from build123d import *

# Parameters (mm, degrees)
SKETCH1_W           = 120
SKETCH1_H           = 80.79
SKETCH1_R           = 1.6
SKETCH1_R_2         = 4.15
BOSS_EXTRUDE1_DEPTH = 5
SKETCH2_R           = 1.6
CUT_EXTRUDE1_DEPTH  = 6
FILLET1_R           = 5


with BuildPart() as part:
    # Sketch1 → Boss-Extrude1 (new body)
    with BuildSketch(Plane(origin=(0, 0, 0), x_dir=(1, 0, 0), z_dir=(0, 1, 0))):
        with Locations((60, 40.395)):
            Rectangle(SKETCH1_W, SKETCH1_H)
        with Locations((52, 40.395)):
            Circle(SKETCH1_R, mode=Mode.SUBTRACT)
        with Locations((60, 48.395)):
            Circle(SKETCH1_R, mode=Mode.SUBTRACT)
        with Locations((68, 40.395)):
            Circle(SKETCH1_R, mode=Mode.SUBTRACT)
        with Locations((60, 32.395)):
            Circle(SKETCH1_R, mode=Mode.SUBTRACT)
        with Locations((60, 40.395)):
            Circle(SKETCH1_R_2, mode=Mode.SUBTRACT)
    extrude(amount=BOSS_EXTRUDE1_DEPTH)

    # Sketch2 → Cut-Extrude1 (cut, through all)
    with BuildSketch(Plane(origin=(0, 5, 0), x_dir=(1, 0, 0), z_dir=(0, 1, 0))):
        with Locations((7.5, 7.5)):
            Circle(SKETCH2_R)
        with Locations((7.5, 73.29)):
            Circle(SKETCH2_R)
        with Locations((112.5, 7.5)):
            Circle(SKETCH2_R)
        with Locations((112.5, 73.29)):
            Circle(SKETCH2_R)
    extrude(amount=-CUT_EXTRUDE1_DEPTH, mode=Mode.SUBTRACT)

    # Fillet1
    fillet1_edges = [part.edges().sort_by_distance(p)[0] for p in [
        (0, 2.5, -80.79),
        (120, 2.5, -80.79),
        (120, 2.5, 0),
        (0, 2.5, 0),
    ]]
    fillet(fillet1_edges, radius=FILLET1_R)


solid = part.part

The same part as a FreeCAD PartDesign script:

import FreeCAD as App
import Part
import Sketcher

V = App.Vector
Q = App.Units.Quantity


def edges_at(feature, points):
    """Names of the edges that pass closest to the given points."""
    edges = feature.Shape.Edges
    near = lambda p: min(range(len(edges)), key=lambda i: edges[i].distToShape(Part.Vertex(*p))[0])
    return sorted({f"Edge{near(p) + 1}" for p in points})


def add_polygon(sketch, points):
    """Adds a closed chain of lines whose ends are joined by coincident constraints."""
    first, n = sketch.GeometryCount, len(points)
    for a, b in zip(points, points[1:] + points[:1]):
        sketch.addGeometry(Part.LineSegment(App.Vector(*a, 0), App.Vector(*b, 0)), False)
    for i in range(n):
        sketch.addConstraint(Sketcher.Constraint("Coincident", first + i, 2, first + (i + 1) % n, 1))

doc = App.newDocument("Part")
body = doc.addObject("PartDesign::Body", "Body")

# Sketch on XZ plane
sketch1 = body.newObject("Sketcher::SketchObject", "Sketch")
sketch1.AttachmentSupport = (doc.getObject("XZ_Plane"), [""])
sketch1.MapMode = "FlatFace"
add_polygon(sketch1, [(0, -80.8), (0, 0), (120, 0), (120, -80.8)])  # lines 0-3
sketch1.addGeometry(Part.Circle(V(60, -32.4, 0), V(0, 0, 1), 1.6), False)  # 4
sketch1.addGeometry(Part.Circle(V(52, -40.4, 0), V(0, 0, 1), 1.6), False)  # 5
sketch1.addGeometry(Part.Circle(V(60, -40.4, 0), V(0, 0, 1), 4.2), False)  # 6
sketch1.addGeometry(Part.Circle(V(68, -40.4, 0), V(0, 0, 1), 1.6), False)  # 7
sketch1.addGeometry(Part.Circle(V(60, -48.4, 0), V(0, 0, 1), 1.6), False)  # 8
sketch1.addConstraint([
    Sketcher.Constraint("Vertical", 0),
    Sketcher.Constraint("Horizontal", 1),
    Sketcher.Constraint("Vertical", 2),
    Sketcher.Constraint("Horizontal", 3),
    Sketcher.Constraint("Coincident", 0, 2, -1, 1),
    Sketcher.Constraint("Equal", 4, 5),
    Sketcher.Constraint("Equal", 5, 7),
    Sketcher.Constraint("Equal", 7, 8),
    Sketcher.Constraint("Horizontal", 5, 3, 6, 3),
    Sketcher.Constraint("Horizontal", 6, 3, 7, 3),
    Sketcher.Constraint("Vertical", 4, 3, 6, 3),
    Sketcher.Constraint("Vertical", 6, 3, 8, 3),
    Sketcher.Constraint("Diameter", 4, Q("3.2 mm")),
    Sketcher.Constraint("Diameter", 6, Q("8.3 mm")),
    Sketcher.Constraint("DistanceX", 1, 1, 1, 2, Q("120 mm")),
    Sketcher.Constraint("DistanceX", -1, 1, 4, 3, Q("60 mm")),
    Sketcher.Constraint("DistanceX", -1, 1, 5, 3, Q("52 mm")),
    Sketcher.Constraint("DistanceX", -1, 1, 7, 3, Q("68 mm")),
    Sketcher.Constraint("DistanceY", 5, 3, 4, 3, Q("8 mm")),
    Sketcher.Constraint("DistanceY", 8, 3, 6, 3, Q("8 mm")),
    Sketcher.Constraint("DistanceY", 0, 1, 0, 2, Q("80.79 mm")),
    Sketcher.Constraint("DistanceY", 4, 3, -1, 1, Q("32.395 mm")),
])
pad1 = body.newObject("PartDesign::Pad", "Pad")
pad1.Profile = sketch1
pad1.Length = 5
pad1.Reversed = True

# Sketch on XZ plane
sketch2 = body.newObject("Sketcher::SketchObject", "Sketch001")
sketch2.AttachmentSupport = (doc.getObject("XZ_Plane"), [""])
sketch2.MapMode = "FlatFace"
sketch2.AttachmentOffset = App.Placement(V(0, 0, -5), App.Rotation())
sketch2.addGeometry([
    Part.Circle(V(7.5, -7.5, 0), V(0, 0, 1), 1.6),
    Part.Circle(V(7.5, -73.3, 0), V(0, 0, 1), 1.6),
    Part.Circle(V(112.5, -7.5, 0), V(0, 0, 1), 1.6),
    Part.Circle(V(112.5, -73.3, 0), V(0, 0, 1), 1.6),
], False)
sketch2.addConstraint([
    Sketcher.Constraint("Equal", 0, 1),
    Sketcher.Constraint("Equal", 1, 2),
    Sketcher.Constraint("Equal", 2, 3),
    Sketcher.Constraint("Horizontal", 0, 3, 2, 3),
    Sketcher.Constraint("Horizontal", 1, 3, 3, 3),
    Sketcher.Constraint("Vertical", 0, 3, 1, 3),
    Sketcher.Constraint("Vertical", 2, 3, 3, 3),
    Sketcher.Constraint("Diameter", 0, Q("3.2 mm")),
    Sketcher.Constraint("DistanceX", 0, 3, 2, 3, Q("105 mm")),
    Sketcher.Constraint("DistanceX", -1, 1, 0, 3, Q("7.5 mm")),
    Sketcher.Constraint("DistanceY", 0, 3, -1, 1, Q("7.5 mm")),
    Sketcher.Constraint("DistanceY", 1, 3, -1, 1, Q("73.29 mm")),
])
pocket1 = body.newObject("PartDesign::Pocket", "Pocket")
pocket1.Profile = sketch2
pocket1.Type = "ThroughAll"
pocket1.Reversed = True
doc.recompute()

fillet = body.newObject("PartDesign::Fillet", "Fillet")
fillet.Base = (pocket1, edges_at(pocket1, [
    (0, 2.5, -80.79),
    (120, 2.5, -80.79),
    (120, 2.5, 0),
    (0, 2.5, 0),
]))
fillet.Radius = 5

doc.recompute()
